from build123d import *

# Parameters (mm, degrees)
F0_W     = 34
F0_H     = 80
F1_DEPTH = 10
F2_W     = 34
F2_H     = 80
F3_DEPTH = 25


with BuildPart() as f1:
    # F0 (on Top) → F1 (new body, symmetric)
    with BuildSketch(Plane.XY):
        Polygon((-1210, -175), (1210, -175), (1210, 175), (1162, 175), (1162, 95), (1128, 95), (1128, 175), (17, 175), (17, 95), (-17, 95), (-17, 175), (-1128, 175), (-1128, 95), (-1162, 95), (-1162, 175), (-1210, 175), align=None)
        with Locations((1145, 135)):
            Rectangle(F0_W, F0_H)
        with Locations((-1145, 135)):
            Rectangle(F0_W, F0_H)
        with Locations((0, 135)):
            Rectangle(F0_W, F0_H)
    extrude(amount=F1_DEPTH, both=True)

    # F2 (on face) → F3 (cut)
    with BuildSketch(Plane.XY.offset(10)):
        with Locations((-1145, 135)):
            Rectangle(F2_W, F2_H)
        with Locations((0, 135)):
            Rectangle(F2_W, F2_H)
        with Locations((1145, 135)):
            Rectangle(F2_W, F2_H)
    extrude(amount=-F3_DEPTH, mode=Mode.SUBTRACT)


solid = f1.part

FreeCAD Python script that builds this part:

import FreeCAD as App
import Part
import Sketcher

V = App.Vector
Q = App.Units.Quantity


def add_polygon(sketch, points):
    """Adds a closed chain of lines whose ends are joined by coincident constraints."""
    first, n = sketch.GeometryCount, len(points)
    for a, b in zip(points, points[1:] + points[:1]):
        sketch.addGeometry(Part.LineSegment(App.Vector(*a, 0), App.Vector(*b, 0)), False)
    for i in range(n):
        sketch.addConstraint(Sketcher.Constraint("Coincident", first + i, 2, first + (i + 1) % n, 1))

doc = App.newDocument("Part")
body = doc.addObject("PartDesign::Body", "Body")

# Sketch on XY plane
sketch1 = doc.addObject("Sketcher::SketchObject", "Sketch")
body.addObject(sketch1)
sketch1.AttachmentSupport = (doc.XY_Plane, [""])
sketch1.MapMode = "FlatFace"
add_polygon(sketch1, [(-1210, -175), (1210, -175), (1210, 175), (-1210, 175)])  # lines 0-3
sketch1.addConstraint([
    Sketcher.Constraint("Horizontal", 0),
    Sketcher.Constraint("Vertical", 1),
    Sketcher.Constraint("Horizontal", 2),
    Sketcher.Constraint("Vertical", 3),
    Sketcher.Constraint("Symmetric", 0, 2, 2, 2, -1, 1),
    Sketcher.Constraint("DistanceX", 0, 1, 0, 2, Q("2420 mm")),
    Sketcher.Constraint("DistanceY", 1, 1, 1, 2, Q("350 mm")),
])
pad1 = doc.addObject("PartDesign::Pad", "Pad")
body.addObject(pad1)
pad1.Profile = sketch1
pad1.Length = 20
pad1.Midplane = True

# Sketch on XY plane
sketch2 = doc.addObject("Sketcher::SketchObject", "Sketch001")
body.addObject(sketch2)
sketch2.AttachmentSupport = (doc.XY_Plane, [""])
sketch2.MapMode = "FlatFace"
sketch2.AttachmentOffset = App.Placement(V(0, 0, 10), App.Rotation())
add_polygon(sketch2, [(-1162, 175), (-1162, 95), (-1128, 95), (-1128, 175)])  # lines 0-3
add_polygon(sketch2, [(-17, 175), (-17, 95), (17, 95), (17, 175)])  # lines 4-7
add_polygon(sketch2, [(1128, 175), (1128, 95), (1162, 95), (1162, 175)])  # lines 8-11
sketch2.addConstraint([
    Sketcher.Constraint("Vertical", 0),
    Sketcher.Constraint("Horizontal", 1),
    Sketcher.Constraint("Vertical", 2),
    Sketcher.Constraint("Horizontal", 3),
    Sketcher.Constraint("Vertical", 4),
    Sketcher.Constraint("Horizontal", 5),
    Sketcher.Constraint("Vertical", 6),
    Sketcher.Constraint("Horizontal", 7),
    Sketcher.Constraint("Vertical", 8),
    Sketcher.Constraint("Horizontal", 9),
    Sketcher.Constraint("Vertical", 10),
    Sketcher.Constraint("Horizontal", 11),
    Sketcher.Constraint("Symmetric", 1, 2, 8, 2, -2),
    Sketcher.Constraint("Symmetric", 3, 2, 10, 2, -2),
    Sketcher.Constraint("Horizontal", 1, 2, 4, 2),
    Sketcher.Constraint("Horizontal", 3, 2, 6, 2),
    Sketcher.Constraint("Equal", 3, 5),
    Sketcher.Constraint("DistanceX", 1, 1, 1, 2, Q("34 mm")),
    Sketcher.Constraint("DistanceY", 0, 2, 0, 1, Q("80 mm")),
    Sketcher.Constraint("DistanceX", 0, 2, -1, 1, Q("1162 mm")),
    Sketcher.Constraint("DistanceY", -1, 1, 0, 2, Q("95 mm")),
    Sketcher.Constraint("DistanceX", 4, 2, -1, 1, Q("17 mm")),
])
pocket1 = doc.addObject("PartDesign::Pocket", "Pocket")
body.addObject(pocket1)
pocket1.Profile = sketch2
pocket1.Length = 25

doc.recompute()
